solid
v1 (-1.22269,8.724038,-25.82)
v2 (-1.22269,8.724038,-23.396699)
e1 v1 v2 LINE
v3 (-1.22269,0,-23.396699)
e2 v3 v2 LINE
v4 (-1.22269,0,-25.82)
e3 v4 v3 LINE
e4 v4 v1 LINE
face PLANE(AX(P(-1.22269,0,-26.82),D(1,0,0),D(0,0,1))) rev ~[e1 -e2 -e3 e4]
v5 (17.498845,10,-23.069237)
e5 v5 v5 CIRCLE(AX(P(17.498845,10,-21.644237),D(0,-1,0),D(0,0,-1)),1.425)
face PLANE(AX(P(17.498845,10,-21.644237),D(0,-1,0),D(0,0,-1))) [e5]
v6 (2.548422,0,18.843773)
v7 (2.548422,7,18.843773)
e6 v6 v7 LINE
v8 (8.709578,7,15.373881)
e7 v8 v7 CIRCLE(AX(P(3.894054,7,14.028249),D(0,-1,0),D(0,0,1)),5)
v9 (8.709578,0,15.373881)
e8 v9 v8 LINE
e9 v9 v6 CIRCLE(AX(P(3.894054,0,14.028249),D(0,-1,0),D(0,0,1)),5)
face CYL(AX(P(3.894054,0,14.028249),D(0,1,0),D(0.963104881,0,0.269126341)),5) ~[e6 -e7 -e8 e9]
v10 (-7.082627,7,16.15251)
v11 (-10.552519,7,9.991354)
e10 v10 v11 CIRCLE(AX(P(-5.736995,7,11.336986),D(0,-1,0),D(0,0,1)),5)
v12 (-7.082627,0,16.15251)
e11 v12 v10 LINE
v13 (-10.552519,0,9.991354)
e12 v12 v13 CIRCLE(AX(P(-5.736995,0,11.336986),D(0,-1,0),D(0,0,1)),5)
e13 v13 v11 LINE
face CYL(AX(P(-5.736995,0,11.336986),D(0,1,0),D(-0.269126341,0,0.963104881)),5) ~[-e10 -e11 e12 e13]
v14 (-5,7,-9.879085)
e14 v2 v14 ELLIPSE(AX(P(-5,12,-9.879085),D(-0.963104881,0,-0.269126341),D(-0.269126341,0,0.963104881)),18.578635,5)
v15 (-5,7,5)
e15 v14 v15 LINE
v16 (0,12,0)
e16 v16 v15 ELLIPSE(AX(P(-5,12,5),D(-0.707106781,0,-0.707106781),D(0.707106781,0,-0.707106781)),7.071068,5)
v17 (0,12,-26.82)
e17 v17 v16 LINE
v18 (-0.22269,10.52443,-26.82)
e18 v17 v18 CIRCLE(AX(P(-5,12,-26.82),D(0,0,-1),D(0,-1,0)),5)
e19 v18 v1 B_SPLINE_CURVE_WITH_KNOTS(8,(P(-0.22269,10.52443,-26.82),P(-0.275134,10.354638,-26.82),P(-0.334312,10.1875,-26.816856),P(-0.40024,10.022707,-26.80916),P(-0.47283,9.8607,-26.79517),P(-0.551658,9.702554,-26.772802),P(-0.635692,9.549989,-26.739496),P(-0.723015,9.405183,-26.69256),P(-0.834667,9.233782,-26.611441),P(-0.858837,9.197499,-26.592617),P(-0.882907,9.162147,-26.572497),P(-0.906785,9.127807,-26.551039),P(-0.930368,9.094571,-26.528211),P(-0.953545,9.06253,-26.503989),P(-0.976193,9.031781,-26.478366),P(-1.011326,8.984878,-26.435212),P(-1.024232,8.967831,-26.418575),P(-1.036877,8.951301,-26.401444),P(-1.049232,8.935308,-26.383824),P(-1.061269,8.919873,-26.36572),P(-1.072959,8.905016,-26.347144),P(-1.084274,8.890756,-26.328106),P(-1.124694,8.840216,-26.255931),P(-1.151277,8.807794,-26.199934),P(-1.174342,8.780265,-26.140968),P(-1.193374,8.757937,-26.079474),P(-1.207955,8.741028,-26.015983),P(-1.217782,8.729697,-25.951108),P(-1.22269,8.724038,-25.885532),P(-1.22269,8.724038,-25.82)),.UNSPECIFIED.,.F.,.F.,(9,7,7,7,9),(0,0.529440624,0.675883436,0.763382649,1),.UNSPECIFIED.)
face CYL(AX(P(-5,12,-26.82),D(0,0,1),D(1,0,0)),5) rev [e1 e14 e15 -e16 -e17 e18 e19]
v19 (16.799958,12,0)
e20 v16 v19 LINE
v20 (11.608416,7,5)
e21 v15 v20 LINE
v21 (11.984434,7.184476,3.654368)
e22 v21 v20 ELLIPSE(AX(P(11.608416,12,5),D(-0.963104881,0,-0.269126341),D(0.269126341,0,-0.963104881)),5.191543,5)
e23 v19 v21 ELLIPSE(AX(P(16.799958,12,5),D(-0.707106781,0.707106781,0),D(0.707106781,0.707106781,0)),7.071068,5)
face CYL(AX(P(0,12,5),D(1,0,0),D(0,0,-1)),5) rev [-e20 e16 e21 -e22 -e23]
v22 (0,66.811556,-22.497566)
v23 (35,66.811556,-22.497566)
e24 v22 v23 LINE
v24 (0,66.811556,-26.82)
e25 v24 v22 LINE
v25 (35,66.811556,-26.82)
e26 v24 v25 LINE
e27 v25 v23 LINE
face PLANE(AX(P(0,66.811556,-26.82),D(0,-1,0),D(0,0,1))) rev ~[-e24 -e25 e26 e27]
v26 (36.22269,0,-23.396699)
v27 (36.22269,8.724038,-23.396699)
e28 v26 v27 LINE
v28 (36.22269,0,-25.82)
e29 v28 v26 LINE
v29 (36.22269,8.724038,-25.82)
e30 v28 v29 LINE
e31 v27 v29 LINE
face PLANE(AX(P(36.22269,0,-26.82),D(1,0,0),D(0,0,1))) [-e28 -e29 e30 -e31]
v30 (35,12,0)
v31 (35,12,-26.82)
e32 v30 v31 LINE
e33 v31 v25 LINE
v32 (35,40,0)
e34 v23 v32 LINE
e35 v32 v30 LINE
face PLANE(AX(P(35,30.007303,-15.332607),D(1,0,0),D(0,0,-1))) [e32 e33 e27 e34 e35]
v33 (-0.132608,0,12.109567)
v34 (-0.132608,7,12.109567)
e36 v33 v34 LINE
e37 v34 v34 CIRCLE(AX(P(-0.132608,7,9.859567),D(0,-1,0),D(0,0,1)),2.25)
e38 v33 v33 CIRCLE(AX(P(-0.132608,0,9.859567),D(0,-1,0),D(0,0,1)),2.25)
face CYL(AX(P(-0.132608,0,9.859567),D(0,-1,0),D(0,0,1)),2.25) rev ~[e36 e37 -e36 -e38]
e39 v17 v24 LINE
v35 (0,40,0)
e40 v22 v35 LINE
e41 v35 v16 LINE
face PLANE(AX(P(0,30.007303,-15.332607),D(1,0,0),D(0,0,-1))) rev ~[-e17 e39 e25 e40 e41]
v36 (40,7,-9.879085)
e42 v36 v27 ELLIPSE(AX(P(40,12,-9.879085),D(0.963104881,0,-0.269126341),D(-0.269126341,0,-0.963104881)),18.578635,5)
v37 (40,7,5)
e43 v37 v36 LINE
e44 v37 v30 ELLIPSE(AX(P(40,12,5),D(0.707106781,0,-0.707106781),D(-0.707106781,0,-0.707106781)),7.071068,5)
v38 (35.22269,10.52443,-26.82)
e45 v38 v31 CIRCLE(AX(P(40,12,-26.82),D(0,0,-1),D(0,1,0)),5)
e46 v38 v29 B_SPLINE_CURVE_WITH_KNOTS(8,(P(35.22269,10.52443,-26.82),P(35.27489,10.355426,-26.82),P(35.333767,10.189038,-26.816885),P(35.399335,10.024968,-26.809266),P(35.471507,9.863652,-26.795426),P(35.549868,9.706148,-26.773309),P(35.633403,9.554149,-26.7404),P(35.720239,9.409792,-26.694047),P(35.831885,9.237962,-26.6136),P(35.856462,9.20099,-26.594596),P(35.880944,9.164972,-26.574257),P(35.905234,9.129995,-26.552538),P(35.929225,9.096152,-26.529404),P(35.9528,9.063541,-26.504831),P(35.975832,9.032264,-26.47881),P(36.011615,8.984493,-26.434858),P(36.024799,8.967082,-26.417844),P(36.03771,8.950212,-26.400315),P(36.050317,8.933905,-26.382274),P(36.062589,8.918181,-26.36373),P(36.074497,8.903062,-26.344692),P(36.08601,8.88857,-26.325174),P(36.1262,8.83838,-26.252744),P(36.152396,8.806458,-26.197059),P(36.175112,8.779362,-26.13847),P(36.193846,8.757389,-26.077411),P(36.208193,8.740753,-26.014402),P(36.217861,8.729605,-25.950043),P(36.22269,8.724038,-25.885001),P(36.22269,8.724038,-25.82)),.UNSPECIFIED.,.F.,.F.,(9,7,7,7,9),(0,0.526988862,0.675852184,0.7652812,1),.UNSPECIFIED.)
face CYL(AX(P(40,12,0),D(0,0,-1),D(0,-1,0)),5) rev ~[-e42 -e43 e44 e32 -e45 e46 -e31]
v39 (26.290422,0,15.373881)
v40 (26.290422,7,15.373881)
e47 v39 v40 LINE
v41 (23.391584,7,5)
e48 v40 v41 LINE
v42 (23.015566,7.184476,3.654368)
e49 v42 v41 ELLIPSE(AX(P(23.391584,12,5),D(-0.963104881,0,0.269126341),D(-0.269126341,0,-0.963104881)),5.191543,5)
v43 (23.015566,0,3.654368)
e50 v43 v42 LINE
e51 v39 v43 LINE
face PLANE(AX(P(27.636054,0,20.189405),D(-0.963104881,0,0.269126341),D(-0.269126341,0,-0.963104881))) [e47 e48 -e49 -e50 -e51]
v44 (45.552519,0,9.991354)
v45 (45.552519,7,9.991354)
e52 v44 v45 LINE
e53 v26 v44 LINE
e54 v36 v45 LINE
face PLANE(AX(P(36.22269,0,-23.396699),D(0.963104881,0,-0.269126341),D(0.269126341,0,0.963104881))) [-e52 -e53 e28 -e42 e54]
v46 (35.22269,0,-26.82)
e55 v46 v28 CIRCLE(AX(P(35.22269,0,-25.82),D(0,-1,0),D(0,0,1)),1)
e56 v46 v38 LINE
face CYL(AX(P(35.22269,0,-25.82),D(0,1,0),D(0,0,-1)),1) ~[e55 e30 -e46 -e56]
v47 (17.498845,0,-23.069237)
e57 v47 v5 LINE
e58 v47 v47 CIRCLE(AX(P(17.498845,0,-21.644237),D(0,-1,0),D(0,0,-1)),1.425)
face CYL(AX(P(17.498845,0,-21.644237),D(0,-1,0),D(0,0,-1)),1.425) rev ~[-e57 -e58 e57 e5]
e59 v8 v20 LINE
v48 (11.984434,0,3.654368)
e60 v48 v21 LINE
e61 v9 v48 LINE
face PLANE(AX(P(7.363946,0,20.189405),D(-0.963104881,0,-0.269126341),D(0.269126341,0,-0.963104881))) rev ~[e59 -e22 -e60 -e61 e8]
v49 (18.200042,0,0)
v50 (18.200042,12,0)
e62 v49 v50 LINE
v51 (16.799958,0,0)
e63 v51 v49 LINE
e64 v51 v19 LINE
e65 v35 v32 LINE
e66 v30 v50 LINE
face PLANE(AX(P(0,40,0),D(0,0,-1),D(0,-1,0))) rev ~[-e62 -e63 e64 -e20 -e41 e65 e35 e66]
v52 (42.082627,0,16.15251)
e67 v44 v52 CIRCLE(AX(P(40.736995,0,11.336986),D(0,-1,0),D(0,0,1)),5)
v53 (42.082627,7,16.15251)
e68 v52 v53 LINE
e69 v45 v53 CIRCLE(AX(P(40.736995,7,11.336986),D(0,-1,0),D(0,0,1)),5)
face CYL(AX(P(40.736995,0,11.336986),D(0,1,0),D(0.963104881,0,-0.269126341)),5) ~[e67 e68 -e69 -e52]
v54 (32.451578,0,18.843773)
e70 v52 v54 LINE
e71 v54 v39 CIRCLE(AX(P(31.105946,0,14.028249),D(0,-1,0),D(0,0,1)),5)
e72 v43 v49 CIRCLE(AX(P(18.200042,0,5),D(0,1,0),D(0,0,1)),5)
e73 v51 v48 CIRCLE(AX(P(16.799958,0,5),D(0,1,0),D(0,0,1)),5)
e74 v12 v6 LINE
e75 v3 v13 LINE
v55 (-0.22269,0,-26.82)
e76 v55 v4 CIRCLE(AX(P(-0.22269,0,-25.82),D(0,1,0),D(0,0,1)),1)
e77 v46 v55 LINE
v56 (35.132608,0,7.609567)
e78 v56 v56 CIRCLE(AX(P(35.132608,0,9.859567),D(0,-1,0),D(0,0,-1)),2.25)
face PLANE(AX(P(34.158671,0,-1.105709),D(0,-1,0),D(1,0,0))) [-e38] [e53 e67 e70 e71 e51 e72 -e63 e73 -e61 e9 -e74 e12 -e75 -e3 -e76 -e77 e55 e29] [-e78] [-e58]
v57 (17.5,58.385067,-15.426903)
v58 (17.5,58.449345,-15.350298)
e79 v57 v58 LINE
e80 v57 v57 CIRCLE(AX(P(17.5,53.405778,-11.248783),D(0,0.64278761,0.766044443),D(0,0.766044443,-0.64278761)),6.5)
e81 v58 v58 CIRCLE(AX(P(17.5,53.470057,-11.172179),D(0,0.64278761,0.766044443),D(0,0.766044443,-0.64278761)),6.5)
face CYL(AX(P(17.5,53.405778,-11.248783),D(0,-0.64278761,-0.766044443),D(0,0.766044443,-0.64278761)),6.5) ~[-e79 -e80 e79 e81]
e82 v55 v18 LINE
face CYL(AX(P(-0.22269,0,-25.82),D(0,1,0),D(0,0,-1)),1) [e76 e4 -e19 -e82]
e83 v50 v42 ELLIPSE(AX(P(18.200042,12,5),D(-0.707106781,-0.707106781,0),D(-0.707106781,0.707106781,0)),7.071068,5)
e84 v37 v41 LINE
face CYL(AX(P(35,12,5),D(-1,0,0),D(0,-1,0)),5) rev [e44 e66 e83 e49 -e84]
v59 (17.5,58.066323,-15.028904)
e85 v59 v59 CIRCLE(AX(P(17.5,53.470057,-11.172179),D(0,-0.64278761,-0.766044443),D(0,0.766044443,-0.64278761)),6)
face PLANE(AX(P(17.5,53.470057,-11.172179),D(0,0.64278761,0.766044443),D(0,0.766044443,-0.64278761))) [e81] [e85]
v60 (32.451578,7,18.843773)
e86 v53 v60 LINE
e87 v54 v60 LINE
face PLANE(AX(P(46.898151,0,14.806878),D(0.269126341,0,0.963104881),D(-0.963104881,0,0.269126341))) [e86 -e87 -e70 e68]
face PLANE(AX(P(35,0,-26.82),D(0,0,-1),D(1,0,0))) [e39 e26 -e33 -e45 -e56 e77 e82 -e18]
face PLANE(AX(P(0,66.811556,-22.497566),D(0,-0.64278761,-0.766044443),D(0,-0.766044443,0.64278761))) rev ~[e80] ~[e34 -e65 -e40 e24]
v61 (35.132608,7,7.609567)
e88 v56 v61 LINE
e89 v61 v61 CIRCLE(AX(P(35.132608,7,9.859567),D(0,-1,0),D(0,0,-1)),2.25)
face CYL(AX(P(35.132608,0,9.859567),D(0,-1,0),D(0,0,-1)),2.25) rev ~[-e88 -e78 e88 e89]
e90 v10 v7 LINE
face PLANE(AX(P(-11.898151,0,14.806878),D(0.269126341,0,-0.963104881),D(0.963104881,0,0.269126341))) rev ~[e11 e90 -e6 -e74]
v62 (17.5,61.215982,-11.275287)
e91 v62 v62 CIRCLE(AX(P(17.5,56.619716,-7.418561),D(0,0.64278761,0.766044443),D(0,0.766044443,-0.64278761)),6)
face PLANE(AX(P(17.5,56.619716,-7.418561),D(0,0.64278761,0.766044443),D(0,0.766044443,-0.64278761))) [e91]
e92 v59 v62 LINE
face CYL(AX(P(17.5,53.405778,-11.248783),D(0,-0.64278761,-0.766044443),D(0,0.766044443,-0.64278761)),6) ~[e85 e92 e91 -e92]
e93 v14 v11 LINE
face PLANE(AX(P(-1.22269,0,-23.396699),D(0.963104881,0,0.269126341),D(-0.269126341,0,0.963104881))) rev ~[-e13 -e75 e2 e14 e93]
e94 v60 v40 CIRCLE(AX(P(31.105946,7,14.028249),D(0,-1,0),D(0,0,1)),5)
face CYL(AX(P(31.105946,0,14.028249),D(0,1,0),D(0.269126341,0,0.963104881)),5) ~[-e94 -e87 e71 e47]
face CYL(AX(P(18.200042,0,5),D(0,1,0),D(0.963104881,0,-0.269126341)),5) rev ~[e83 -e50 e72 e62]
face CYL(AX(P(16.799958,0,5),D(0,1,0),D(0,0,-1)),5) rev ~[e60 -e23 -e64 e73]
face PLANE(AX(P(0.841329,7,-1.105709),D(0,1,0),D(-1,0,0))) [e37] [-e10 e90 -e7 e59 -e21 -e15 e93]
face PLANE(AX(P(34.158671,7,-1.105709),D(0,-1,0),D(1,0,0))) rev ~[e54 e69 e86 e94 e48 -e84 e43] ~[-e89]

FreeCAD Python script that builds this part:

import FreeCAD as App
import Part
import Sketcher

V = App.Vector
Q = App.Units.Quantity


def edges_at(feature, points):
    """Names of the edges that pass closest to the given points."""
    edges = feature.Shape.Edges
    near = lambda p: min(range(len(edges)), key=lambda i: edges[i].distToShape(Part.Vertex(*p))[0])
    return sorted({f"Edge{near(p) + 1}" for p in points})


def add_polygon(sketch, points):
    """Adds a closed chain of lines whose ends are joined by coincident constraints."""
    first, n = sketch.GeometryCount, len(points)
    for a, b in zip(points, points[1:] + points[:1]):
        sketch.addGeometry(Part.LineSegment(App.Vector(*a, 0), App.Vector(*b, 0)), False)
    for i in range(n):
        sketch.addConstraint(Sketcher.Constraint("Coincident", first + i, 2, first + (i + 1) % n, 1))

doc = App.newDocument("Part")
body = doc.addObject("PartDesign::Body", "Body")

# Sketch on YZ plane
sketch1 = body.newObject("Sketcher::SketchObject", "Sketch")
sketch1.AttachmentSupport = (doc.getObject("YZ_Plane"), [""])
sketch1.MapMode = "FlatFace"
add_polygon(sketch1, [(0, 0), (0, -26.8), (66.8, -26.8), (66.8, -22.5), (40, 0)])  # lines 0-4
sketch1.addConstraint([
    Sketcher.Constraint("Vertical", 0),
    Sketcher.Constraint("Horizontal", 1),
    Sketcher.Constraint("Vertical", 2),
    Sketcher.Constraint("Horizontal", 4),
    Sketcher.Constraint("Coincident", 4, 2, -1, 1),
    Sketcher.Constraint("DistanceX", 4, 2, 4, 1, 40.0),
    Sketcher.Constraint("Angle", 3, Q("140 deg")),
    Sketcher.Constraint("Distance", 3, 35.0),
    Sketcher.Constraint("DistanceY", 0, 2, 0, 1, 26.82),
])
pad1 = body.newObject("PartDesign::Pad", "Pad")
pad1.Profile = sketch1
pad1.Length = 35

# Sketch on an angled plane
sketch2 = body.newObject("Sketcher::SketchObject", "Sketch001")
sketch2.Placement = App.Placement(V(0, 16.527036, 19.696155), App.Rotation(V(1, 0, 0), V(0, 0.766044443, -0.64278761), V(0, 0.64278761, 0.766044443), "ZXY"))
sketch2.addGeometry(Part.Circle(V(18, 48, 0), V(0, 0, 1), 6), False)
sketch2.addConstraint([
    Sketcher.Constraint("Diameter", 0, 12.0),
    Sketcher.Constraint("DistanceX", -1, 1, 0, 3, 17.5),
    Sketcher.Constraint("DistanceY", -1, 1, 0, 3, 48.141778),
])
pad2 = body.newObject("PartDesign::Pad", "Pad001")
pad2.Profile = sketch2
pad2.Length = 5

# Sketch on an angled plane
sketch3 = body.newObject("Sketcher::SketchObject", "Sketch002")
sketch3.Placement = App.Placement(V(0, 16.527036, 19.696155), App.Rotation(V(1, 0, 0), V(0, 0.766044443, -0.64278761), V(0, 0.64278761, 0.766044443), "ZXY"))
sketch3.addGeometry(Part.Circle(V(18, 48, 0), V(0, 0, 1), 6), False)
sketch3.addConstraint([
    Sketcher.Constraint("Diameter", 0, 13.0),
    Sketcher.Constraint("DistanceX", -1, 1, 0, 3, 17.5),
    Sketcher.Constraint("DistanceY", -1, 1, 0, 3, 48.141778),
])
pad3 = body.newObject("PartDesign::Pad", "Pad002")
pad3.Profile = sketch3
pad3.Length = 0.1

# Sketch on XZ plane
sketch4 = body.newObject("Sketcher::SketchObject", "Sketch003")
sketch4.AttachmentSupport = (doc.getObject("XZ_Plane"), [""])
sketch4.MapMode = "FlatFace"
sketch4.addGeometry(Part.Circle(V(17.5, -21.6, 0), V(0, 0, 1), 1.4), False)
sketch4.addConstraint([
    Sketcher.Constraint("Diameter", 0, 2.85),
    Sketcher.Constraint("DistanceX", -1, 1, 0, 3, 17.498845),
    Sketcher.Constraint("DistanceY", 0, 3, -1, 1, 21.644237),
])
pocket1 = body.newObject("PartDesign::Pocket", "Pocket")
pocket1.Profile = sketch4
pocket1.Length = 10

# Sketch on XZ plane
sketch5 = body.newObject("Sketcher::SketchObject", "Sketch004")
sketch5.AttachmentSupport = (doc.getObject("XZ_Plane"), [""])
sketch5.MapMode = "FlatFace"
add_polygon(sketch5, [(35, -26.8), (36.2, -26.8), (36.2, -23.4), (46.9, 14.8), (27.6, 20.2), (22, 0)])  # lines 0-5
sketch5.addGeometry(Part.Circle(V(35.1, 9.9, 0), V(0, 0, 1), 2.2), False)  # 6
add_polygon(sketch5, [(-1.2, -23.4), (-1.2, -26.8), (0, -26.8), (13, 0), (7.4, 20.2), (-11.9, 14.8)])  # lines 7-12
sketch5.addGeometry(Part.Circle(V(-0.1, 9.9, 0), V(0, 0, 1), 2.2), False)  # 13
sketch5.addConstraint([
    Sketcher.Constraint("Horizontal", 0),
    Sketcher.Constraint("Vertical", 1),
    Sketcher.Constraint("Vertical", 7),
    Sketcher.Constraint("Horizontal", 8),
    Sketcher.Constraint("Equal", 6, 13),
    Sketcher.Constraint("PointOnObject", 4, 2, -1),
    Sketcher.Constraint("PointOnObject", 8, 2, -2),
    Sketcher.Constraint("PointOnObject", 9, 2, -1),
    Sketcher.Constraint("Perpendicular", 2, 3),
    Sketcher.Constraint("Perpendicular", 3, 4),
    Sketcher.Constraint("Perpendicular", 10, 11),
    Sketcher.Constraint("Perpendicular", 11, 12),
    Sketcher.Constraint("Horizontal", 6, 3, 13, 3),
    Sketcher.Constraint("Horizontal", 5, 2, 7, 2),
    Sketcher.Constraint("Horizontal", 3, 2, 10, 2),
    Sketcher.Constraint("Horizontal", 2, 2, 11, 2),
    Sketcher.Constraint("Horizontal", 1, 2, 12, 2),
    Sketcher.Constraint("Equal", 0, 8),
    Sketcher.Constraint("Equal", 5, 9),
    Sketcher.Constraint("Diameter", 6, 4.5),
    Sketcher.Constraint("Distance", 3, 20.0),
    Sketcher.Constraint("DistanceX", -1, 1, 5, 2, 35.0),
    Sketcher.Constraint("DistanceY", 0, 2, -1, 1, 26.82),
    Sketcher.Constraint("DistanceY", 1, 1, 1, 2, 3.423301),
    Sketcher.Constraint("Distance", 2, 39.667099),
    Sketcher.Constraint("DistanceX", 0, 1, 0, 2, 1.22269),
    Sketcher.Constraint("DistanceX", 13, 3, 0, 2, 36.355298),
    Sketcher.Constraint("Distance", 4, 20.962831),
    Sketcher.Constraint("DistanceX", -1, 1, 6, 3, 35.132608),
    Sketcher.Constraint("DistanceY", 6, 3, 2, 2, 4.947311),
])
pad4 = body.newObject("PartDesign::Pad", "Pad003")
pad4.Profile = sketch5
pad4.Length = 7
pad4.Reversed = True
doc.recompute()

fillet = body.newObject("PartDesign::Fillet", "Fillet")
fillet.Base = (pad4, edges_at(pad4, [
    (6.503, 7, 0),
    (28.497, 7, 0),
    (35, 7, -13.41),
    (0, 7, -13.41),
    (-11.898, 3.5, 14.807),
    (7.364, 3.5, 20.189),
    (46.898, 3.5, 14.807),
    (27.636, 3.5, 20.189),
    (21.994, 3.5, 0),
    (13.006, 3.5, 0),
]))
fillet.Radius = 5
doc.recompute()

fillet2 = body.newObject("PartDesign::Fillet", "Fillet001")
fillet2.Base = (fillet, edges_at(fillet, [(36.223, 4.362, -26.82), (-1.223, 4.362, -26.82)]))
fillet2.Radius = 1

doc.recompute()
